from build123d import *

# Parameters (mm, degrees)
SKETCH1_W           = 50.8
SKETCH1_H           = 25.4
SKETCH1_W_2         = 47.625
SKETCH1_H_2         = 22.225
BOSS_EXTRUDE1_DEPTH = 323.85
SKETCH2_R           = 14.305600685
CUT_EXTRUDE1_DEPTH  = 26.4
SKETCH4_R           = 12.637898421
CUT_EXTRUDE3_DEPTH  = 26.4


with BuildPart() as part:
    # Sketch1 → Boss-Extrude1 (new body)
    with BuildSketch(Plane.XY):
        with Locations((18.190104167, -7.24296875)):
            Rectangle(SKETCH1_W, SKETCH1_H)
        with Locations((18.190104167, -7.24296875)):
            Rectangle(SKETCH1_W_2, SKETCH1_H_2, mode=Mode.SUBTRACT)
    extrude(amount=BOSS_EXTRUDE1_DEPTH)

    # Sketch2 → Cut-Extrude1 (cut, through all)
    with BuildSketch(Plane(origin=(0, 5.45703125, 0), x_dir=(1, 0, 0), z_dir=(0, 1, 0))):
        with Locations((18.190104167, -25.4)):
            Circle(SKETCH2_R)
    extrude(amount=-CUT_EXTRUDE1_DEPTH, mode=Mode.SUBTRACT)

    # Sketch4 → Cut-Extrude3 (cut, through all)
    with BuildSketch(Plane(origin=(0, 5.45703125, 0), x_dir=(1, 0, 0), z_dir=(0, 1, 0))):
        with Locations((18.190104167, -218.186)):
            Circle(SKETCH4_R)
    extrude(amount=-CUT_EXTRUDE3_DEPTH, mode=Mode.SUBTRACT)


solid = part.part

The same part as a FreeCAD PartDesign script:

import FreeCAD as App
import Part
import Sketcher
from FreeCAD import Vector
Q = App.Units.Quantity

doc = App.newDocument("Part")
body = doc.addObject("PartDesign::Body", "Body")

sketch1 = body.newObject("Sketcher::SketchObject", "Sketch")
sketch1.AttachmentSupport = (doc.getObject("XY_Plane"), [""])
sketch1.MapMode = "FlatFace"
sketch1.addGeometry(Part.LineSegment(Vector(-7, 5, 0), Vector(-7, -20, 0)), False)
sketch1.addGeometry(Part.LineSegment(Vector(-7, -20, 0), Vector(44, -20, 0)), False)
sketch1.addGeometry(Part.LineSegment(Vector(44, -20, 0), Vector(44, 5, 0)), False)
sketch1.addGeometry(Part.LineSegment(Vector(44, 5, 0), Vector(-7, 5, 0)), False)
sketch1.addGeometry(Part.LineSegment(Vector(42, -18, 0), Vector(-6, -18, 0)), False)
sketch1.addGeometry(Part.LineSegment(Vector(-6, -18, 0), Vector(-6, 4, 0)), False)
sketch1.addGeometry(Part.LineSegment(Vector(-6, 4, 0), Vector(42, 4, 0)), False)
sketch1.addGeometry(Part.LineSegment(Vector(42, 4, 0), Vector(42, -18, 0)), False)
sketch1.addConstraint(Sketcher.Constraint("Coincident", 0, 2, 1, 1))
sketch1.addConstraint(Sketcher.Constraint("Coincident", 1, 2, 2, 1))
sketch1.addConstraint(Sketcher.Constraint("Coincident", 2, 2, 3, 1))
sketch1.addConstraint(Sketcher.Constraint("Coincident", 3, 2, 0, 1))
sketch1.addConstraint(Sketcher.Constraint("Coincident", 4, 2, 5, 1))
sketch1.addConstraint(Sketcher.Constraint("Coincident", 5, 2, 6, 1))
sketch1.addConstraint(Sketcher.Constraint("Coincident", 6, 2, 7, 1))
sketch1.addConstraint(Sketcher.Constraint("Coincident", 7, 2, 4, 1))
sketch1.addConstraint(Sketcher.Constraint("Vertical", 0))
sketch1.addConstraint(Sketcher.Constraint("Horizontal", 1))
sketch1.addConstraint(Sketcher.Constraint("Vertical", 2))
sketch1.addConstraint(Sketcher.Constraint("Horizontal", 3))
sketch1.addConstraint(Sketcher.Constraint("Horizontal", 4))
sketch1.addConstraint(Sketcher.Constraint("Vertical", 5))
sketch1.addConstraint(Sketcher.Constraint("Horizontal", 6))
sketch1.addConstraint(Sketcher.Constraint("Vertical", 7))
sketch1.addConstraint(Sketcher.Constraint("DistanceX", 1, 1, 1, 2, Q("2 in")))
sketch1.addConstraint(Sketcher.Constraint("DistanceY", 0, 2, 0, 1, Q("1 in")))
sketch1.addConstraint(Sketcher.Constraint("DistanceX", 4, 2, 4, 1, Q("1.875 in")))
sketch1.addConstraint(Sketcher.Constraint("DistanceY", 5, 1, 5, 2, Q("0.875 in")))
sketch1.addConstraint(Sketcher.Constraint("DistanceX", 0, 2, 4, 2, Q("0.0625 in")))
sketch1.addConstraint(Sketcher.Constraint("DistanceY", 0, 2, 4, 2, Q("0.0625 in")))
sketch1.addConstraint(Sketcher.Constraint("DistanceY", 0, 2, -1, 1, 19.942969))
sketch1.addConstraint(Sketcher.Constraint("DistanceX", 0, 2, -1, 1, 7.209896))
pad1 = body.newObject("PartDesign::Pad", "Pad")
pad1.Profile = sketch1
pad1.Length = Q("12.75 in")

sketch2 = body.newObject("Sketcher::SketchObject", "Sketch001")
sketch2.AttachmentSupport = (doc.getObject("XZ_Plane"), [""])
sketch2.MapMode = "FlatFace"
sketch2.AttachmentOffset = App.Placement(Vector(0, 0, -5.457031), App.Rotation())
sketch2.addGeometry(Part.Circle(Vector(18, 25, 0), Vector(0, 0, 1), 14), False)
sketch2.addConstraint(Sketcher.Constraint("DistanceY", -1, 1, 0, 3, Q("1 in")))
sketch2.addConstraint(Sketcher.Constraint("Diameter", 0, 28.611201))
sketch2.addConstraint(Sketcher.Constraint("DistanceX", -1, 1, 0, 3, 18.190104))
pocket1 = body.newObject("PartDesign::Pocket", "Pocket")
pocket1.Profile = sketch2
pocket1.Type = "ThroughAll"
pocket1.Reversed = True

sketch3 = body.newObject("Sketcher::SketchObject", "Sketch002")
sketch3.AttachmentSupport = (doc.getObject("XZ_Plane"), [""])
sketch3.MapMode = "FlatFace"
sketch3.AttachmentOffset = App.Placement(Vector(0, 0, -5.457031), App.Rotation())
sketch3.addGeometry(Part.Circle(Vector(18, 218, 0), Vector(0, 0, 1), 13), False)
sketch3.addConstraint(Sketcher.Constraint("DistanceY", -1, 1, 0, 3, Q("8.59 in")))
sketch3.addConstraint(Sketcher.Constraint("Diameter", 0, 25.275797))
sketch3.addConstraint(Sketcher.Constraint("DistanceX", -1, 1, 0, 3, 18.190104))
pocket2 = body.newObject("PartDesign::Pocket", "Pocket001")
pocket2.Profile = sketch3
pocket2.Type = "ThroughAll"
pocket2.Reversed = True

doc.recompute()
